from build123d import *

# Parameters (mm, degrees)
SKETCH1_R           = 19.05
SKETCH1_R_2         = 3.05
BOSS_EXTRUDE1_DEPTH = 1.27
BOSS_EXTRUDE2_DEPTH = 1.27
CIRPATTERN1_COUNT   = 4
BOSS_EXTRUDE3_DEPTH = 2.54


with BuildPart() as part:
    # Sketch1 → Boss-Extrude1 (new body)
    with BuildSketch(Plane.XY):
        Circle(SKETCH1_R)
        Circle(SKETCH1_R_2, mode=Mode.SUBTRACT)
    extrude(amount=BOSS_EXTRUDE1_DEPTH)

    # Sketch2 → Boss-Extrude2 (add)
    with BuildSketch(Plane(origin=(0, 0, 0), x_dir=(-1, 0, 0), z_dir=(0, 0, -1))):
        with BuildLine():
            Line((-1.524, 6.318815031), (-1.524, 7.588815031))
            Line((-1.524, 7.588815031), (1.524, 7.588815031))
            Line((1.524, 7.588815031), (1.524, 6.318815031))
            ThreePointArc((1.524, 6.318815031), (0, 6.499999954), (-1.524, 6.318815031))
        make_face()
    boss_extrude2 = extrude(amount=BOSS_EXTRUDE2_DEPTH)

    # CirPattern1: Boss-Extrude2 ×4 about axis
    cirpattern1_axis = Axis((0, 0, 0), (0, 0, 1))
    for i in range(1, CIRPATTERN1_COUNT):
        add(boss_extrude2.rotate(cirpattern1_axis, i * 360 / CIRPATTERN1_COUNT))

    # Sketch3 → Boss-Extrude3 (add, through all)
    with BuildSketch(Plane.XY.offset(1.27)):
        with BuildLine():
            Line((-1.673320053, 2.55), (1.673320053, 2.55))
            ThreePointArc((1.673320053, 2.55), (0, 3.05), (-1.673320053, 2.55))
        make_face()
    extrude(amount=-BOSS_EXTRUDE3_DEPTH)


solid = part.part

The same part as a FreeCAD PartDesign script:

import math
import FreeCAD as App
import Part
import Sketcher

V = App.Vector
Q = App.Units.Quantity

doc = App.newDocument("Part")
body = doc.addObject("PartDesign::Body", "Body")

sketch1 = body.newObject("Sketcher::SketchObject", "Sketch")
sketch1.AttachmentSupport = (doc.getObject("XY_Plane"), [""])
sketch1.MapMode = "FlatFace"
sketch1.addGeometry([
    Part.Circle(V(0, 0, 0), V(0, 0, 1), 19.1),
    Part.Circle(V(0, 0, 0), V(0, 0, 1), 3),
], False)
sketch1.addConstraint([
    Sketcher.Constraint("Coincident", 0, 3, -1, 1),
    Sketcher.Constraint("Coincident", 1, 3, -1, 1),
    Sketcher.Constraint("Diameter", 0, Q("1.5 in")),
    Sketcher.Constraint("Diameter", 1, 6.1),
])
pad1 = body.newObject("PartDesign::Pad", "Pad")
pad1.Profile = sketch1
pad1.Length = Q("0.05 in")

sketch2 = body.newObject("Sketcher::SketchObject", "Sketch001")
sketch2.AttachmentSupport = (doc.getObject("XY_Plane"), [""])
sketch2.MapMode = "FlatFace"
sketch2.addGeometry([
    Part.LineSegment(V(1.5, 7.6, 0), V(1.5, 6.3, 0)),
    Part.ArcOfCircle(Part.Circle(V(0, 0, 0), V(0, 0, 1), 6.5), math.radians(76), math.radians(104)),
    Part.LineSegment(V(-1.5, 6.3, 0), V(-1.5, 7.6, 0)),
    Part.LineSegment(V(-1.5, 7.6, 0), V(1.5, 7.6, 0)),
], False)
sketch2.addConstraint([
    Sketcher.Constraint("Coincident", 0, 2, 1, 1),
    Sketcher.Constraint("Coincident", 1, 2, 2, 1),
    Sketcher.Constraint("Coincident", 2, 2, 3, 1),
    Sketcher.Constraint("Coincident", 3, 2, 0, 1),
    Sketcher.Constraint("Vertical", 0),
    Sketcher.Constraint("Vertical", 2),
    Sketcher.Constraint("Horizontal", 3),
    Sketcher.Constraint("Coincident", 1, 3, -1, 1),
    Sketcher.Constraint("Horizontal", 0, 2, 1, 2),
    Sketcher.Constraint("DistanceX", 3, 1, 3, 2, Q("0.12 in")),
    Sketcher.Constraint("DistanceY", 0, 2, 0, 1, Q("0.05 in")),
    Sketcher.Constraint("Radius", 1, 6.5),
])
pad2 = body.newObject("PartDesign::Pad", "Pad001")
pad2.Profile = sketch2
pad2.Length = Q("0.05 in")
pad2.Reversed = True
doc.recompute()

polarpattern = body.newObject("PartDesign::PolarPattern", "PolarPattern")
polarpattern.Originals = [pad2]
polarpattern.Axis = (doc.getObject("Z_Axis"), [""])
polarpattern.Angle = 360
polarpattern.Occurrences = 4
body.Tip = polarpattern

sketch3 = body.newObject("Sketcher::SketchObject", "Sketch002")
sketch3.AttachmentSupport = (doc.getObject("XY_Plane"), [""])
sketch3.MapMode = "FlatFace"
sketch3.AttachmentOffset = App.Placement(V(0, 0, 0.05 * 25.4), App.Rotation())
sketch3.addGeometry([
    Part.LineSegment(V(-1.7, 2.5, 0), V(1.7, 2.5, 0)),
    Part.ArcOfCircle(Part.Circle(V(0, 0, 0), V(0, 0, 1), 3), math.radians(57), math.radians(123)),
], False)
sketch3.addConstraint([
    Sketcher.Constraint("Coincident", 0, 1, 1, 2),
    Sketcher.Constraint("Coincident", 1, 1, 0, 2),
    Sketcher.Constraint("Horizontal", 0),
    Sketcher.Constraint("Coincident", 1, 3, -1, 1),
    Sketcher.Constraint("Radius", 1, 3.05),
    Sketcher.Constraint("DistanceX", 0, 1, 0, 2, 3.34664),
])
pad3 = body.newObject("PartDesign::Pad", "Pad002")
pad3.Profile = sketch3
pad3.Length = Q("0.1 in")
pad3.Reversed = True

doc.recompute()
